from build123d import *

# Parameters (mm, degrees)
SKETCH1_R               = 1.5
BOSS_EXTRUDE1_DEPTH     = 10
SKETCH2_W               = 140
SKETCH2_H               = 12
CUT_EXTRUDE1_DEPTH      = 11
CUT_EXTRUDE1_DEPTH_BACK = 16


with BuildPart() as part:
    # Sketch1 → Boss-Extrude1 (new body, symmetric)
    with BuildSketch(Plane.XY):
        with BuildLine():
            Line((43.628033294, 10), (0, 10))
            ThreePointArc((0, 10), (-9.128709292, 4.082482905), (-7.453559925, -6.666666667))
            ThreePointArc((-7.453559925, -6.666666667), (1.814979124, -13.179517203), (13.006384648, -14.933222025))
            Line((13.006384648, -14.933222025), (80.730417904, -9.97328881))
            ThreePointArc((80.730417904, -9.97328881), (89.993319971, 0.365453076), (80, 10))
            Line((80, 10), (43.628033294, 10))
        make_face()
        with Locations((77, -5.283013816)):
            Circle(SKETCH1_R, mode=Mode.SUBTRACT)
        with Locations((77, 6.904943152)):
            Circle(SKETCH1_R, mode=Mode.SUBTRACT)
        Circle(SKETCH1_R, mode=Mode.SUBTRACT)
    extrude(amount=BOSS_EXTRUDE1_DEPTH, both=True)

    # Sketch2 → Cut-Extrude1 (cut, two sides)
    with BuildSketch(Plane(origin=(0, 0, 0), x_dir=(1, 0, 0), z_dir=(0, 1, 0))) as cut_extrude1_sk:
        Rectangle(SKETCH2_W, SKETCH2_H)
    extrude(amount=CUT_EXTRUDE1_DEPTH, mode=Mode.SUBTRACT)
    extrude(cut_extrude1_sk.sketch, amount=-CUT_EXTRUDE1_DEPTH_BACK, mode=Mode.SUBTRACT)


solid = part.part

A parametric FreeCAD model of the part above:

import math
import FreeCAD as App
import Part
import Sketcher

V = App.Vector


def add_polygon(sketch, points):
    """Adds a closed chain of lines whose ends are joined by coincident constraints."""
    first, n = sketch.GeometryCount, len(points)
    for a, b in zip(points, points[1:] + points[:1]):
        sketch.addGeometry(Part.LineSegment(App.Vector(*a, 0), App.Vector(*b, 0)), False)
    for i in range(n):
        sketch.addConstraint(Sketcher.Constraint("Coincident", first + i, 2, first + (i + 1) % n, 1))

doc = App.newDocument("Part")
body = doc.addObject("PartDesign::Body", "Body")

# Sketch on XY plane
sketch1 = body.newObject("Sketcher::SketchObject", "Sketch")
sketch1.AttachmentSupport = (doc.getObject("XY_Plane"), [""])
sketch1.MapMode = "FlatFace"
sketch1.addGeometry([
    Part.ArcOfCircle(Part.Circle(V(0, 0, 0), V(0, 0, 1), 10), math.radians(90), math.radians(221.810315)),  # 0
    Part.ArcOfCircle(Part.Circle(V(11.18034, 10, 0), V(0, 0, 1), 25), math.radians(-138.189685), math.radians(-85.811284)),  # 1
    Part.LineSegment(V(13.006385, -14.933222, 0), V(80.730418, -9.973289, 0)),  # 2
    Part.ArcOfCircle(Part.Circle(V(80, 0, 0), V(0, 0, 1), 10), math.radians(-85.811283), math.radians(90)),  # 3
    Part.LineSegment(V(80, 10, 0), V(0, 10, 0)),  # 4
    Part.Circle(V(0, 0, 0), V(0, 0, 1), 1.5),  # 5
    Part.Circle(V(77, -5.283014, 0), V(0, 0, 1), 1.5),  # 6
    Part.Circle(V(77, 6.904943, 0), V(0, 0, 1), 1.5),  # 7
], False)
sketch1.addConstraint([
    Sketcher.Constraint("Tangent", 0, 2, 1, 1),
    Sketcher.Constraint("Tangent", 1, 2, 2, 1),
    Sketcher.Constraint("Tangent", 2, 2, 3, 1),
    Sketcher.Constraint("Tangent", 3, 2, 4, 1),
    Sketcher.Constraint("Tangent", 4, 2, 0, 1),
    Sketcher.Constraint("Horizontal", 4),
    Sketcher.Constraint("Coincident", 0, 3, -1, 1),
    Sketcher.Constraint("Coincident", 5, 3, -1, 1),
    Sketcher.Constraint("Equal", 0, 3),
    Sketcher.Constraint("Equal", 5, 6),
    Sketcher.Constraint("Equal", 6, 7),
    Sketcher.Constraint("Horizontal", 1, 3, 3, 2),
    Sketcher.Constraint("Vertical", 6, 3, 7, 3),
    Sketcher.Constraint("Diameter", 5, 3.0),
    Sketcher.Constraint("Radius", 0, 10.0),
    Sketcher.Constraint("Radius", 1, 25.0),
    Sketcher.Constraint("DistanceX", 4, 2, 4, 1, 80.0),
    Sketcher.Constraint("DistanceX", -1, 1, 6, 3, 77.0),
    Sketcher.Constraint("DistanceY", 0, 2, 7, 3, 13.57161),
    Sketcher.Constraint("DistanceY", 1, 2, 6, 3, 9.650208),
])
pad1 = body.newObject("PartDesign::Pad", "Pad")
pad1.Profile = sketch1
pad1.Length = 20
pad1.Midplane = True

# Sketch on XZ plane
sketch2 = body.newObject("Sketcher::SketchObject", "Sketch001")
sketch2.AttachmentSupport = (doc.getObject("XZ_Plane"), [""])
sketch2.MapMode = "FlatFace"
add_polygon(sketch2, [(-70, -6), (-70, 6), (70, 6), (70, -6)])  # lines 0-3
sketch2.addConstraint([
    Sketcher.Constraint("Vertical", 0),
    Sketcher.Constraint("Horizontal", 1),
    Sketcher.Constraint("Vertical", 2),
    Sketcher.Constraint("Horizontal", 3),
    Sketcher.Constraint("Symmetric", 0, 2, 2, 2, -1, 1),
    Sketcher.Constraint("DistanceX", 1, 1, 1, 2, 140.0),
    Sketcher.Constraint("DistanceY", 0, 1, 0, 2, 12.0),
])
pocket1 = body.newObject("PartDesign::Pocket", "Pocket")
pocket1.Profile = sketch2
pocket1.Type = "ThroughAll"
pocket1.Midplane = True

doc.recompute()
